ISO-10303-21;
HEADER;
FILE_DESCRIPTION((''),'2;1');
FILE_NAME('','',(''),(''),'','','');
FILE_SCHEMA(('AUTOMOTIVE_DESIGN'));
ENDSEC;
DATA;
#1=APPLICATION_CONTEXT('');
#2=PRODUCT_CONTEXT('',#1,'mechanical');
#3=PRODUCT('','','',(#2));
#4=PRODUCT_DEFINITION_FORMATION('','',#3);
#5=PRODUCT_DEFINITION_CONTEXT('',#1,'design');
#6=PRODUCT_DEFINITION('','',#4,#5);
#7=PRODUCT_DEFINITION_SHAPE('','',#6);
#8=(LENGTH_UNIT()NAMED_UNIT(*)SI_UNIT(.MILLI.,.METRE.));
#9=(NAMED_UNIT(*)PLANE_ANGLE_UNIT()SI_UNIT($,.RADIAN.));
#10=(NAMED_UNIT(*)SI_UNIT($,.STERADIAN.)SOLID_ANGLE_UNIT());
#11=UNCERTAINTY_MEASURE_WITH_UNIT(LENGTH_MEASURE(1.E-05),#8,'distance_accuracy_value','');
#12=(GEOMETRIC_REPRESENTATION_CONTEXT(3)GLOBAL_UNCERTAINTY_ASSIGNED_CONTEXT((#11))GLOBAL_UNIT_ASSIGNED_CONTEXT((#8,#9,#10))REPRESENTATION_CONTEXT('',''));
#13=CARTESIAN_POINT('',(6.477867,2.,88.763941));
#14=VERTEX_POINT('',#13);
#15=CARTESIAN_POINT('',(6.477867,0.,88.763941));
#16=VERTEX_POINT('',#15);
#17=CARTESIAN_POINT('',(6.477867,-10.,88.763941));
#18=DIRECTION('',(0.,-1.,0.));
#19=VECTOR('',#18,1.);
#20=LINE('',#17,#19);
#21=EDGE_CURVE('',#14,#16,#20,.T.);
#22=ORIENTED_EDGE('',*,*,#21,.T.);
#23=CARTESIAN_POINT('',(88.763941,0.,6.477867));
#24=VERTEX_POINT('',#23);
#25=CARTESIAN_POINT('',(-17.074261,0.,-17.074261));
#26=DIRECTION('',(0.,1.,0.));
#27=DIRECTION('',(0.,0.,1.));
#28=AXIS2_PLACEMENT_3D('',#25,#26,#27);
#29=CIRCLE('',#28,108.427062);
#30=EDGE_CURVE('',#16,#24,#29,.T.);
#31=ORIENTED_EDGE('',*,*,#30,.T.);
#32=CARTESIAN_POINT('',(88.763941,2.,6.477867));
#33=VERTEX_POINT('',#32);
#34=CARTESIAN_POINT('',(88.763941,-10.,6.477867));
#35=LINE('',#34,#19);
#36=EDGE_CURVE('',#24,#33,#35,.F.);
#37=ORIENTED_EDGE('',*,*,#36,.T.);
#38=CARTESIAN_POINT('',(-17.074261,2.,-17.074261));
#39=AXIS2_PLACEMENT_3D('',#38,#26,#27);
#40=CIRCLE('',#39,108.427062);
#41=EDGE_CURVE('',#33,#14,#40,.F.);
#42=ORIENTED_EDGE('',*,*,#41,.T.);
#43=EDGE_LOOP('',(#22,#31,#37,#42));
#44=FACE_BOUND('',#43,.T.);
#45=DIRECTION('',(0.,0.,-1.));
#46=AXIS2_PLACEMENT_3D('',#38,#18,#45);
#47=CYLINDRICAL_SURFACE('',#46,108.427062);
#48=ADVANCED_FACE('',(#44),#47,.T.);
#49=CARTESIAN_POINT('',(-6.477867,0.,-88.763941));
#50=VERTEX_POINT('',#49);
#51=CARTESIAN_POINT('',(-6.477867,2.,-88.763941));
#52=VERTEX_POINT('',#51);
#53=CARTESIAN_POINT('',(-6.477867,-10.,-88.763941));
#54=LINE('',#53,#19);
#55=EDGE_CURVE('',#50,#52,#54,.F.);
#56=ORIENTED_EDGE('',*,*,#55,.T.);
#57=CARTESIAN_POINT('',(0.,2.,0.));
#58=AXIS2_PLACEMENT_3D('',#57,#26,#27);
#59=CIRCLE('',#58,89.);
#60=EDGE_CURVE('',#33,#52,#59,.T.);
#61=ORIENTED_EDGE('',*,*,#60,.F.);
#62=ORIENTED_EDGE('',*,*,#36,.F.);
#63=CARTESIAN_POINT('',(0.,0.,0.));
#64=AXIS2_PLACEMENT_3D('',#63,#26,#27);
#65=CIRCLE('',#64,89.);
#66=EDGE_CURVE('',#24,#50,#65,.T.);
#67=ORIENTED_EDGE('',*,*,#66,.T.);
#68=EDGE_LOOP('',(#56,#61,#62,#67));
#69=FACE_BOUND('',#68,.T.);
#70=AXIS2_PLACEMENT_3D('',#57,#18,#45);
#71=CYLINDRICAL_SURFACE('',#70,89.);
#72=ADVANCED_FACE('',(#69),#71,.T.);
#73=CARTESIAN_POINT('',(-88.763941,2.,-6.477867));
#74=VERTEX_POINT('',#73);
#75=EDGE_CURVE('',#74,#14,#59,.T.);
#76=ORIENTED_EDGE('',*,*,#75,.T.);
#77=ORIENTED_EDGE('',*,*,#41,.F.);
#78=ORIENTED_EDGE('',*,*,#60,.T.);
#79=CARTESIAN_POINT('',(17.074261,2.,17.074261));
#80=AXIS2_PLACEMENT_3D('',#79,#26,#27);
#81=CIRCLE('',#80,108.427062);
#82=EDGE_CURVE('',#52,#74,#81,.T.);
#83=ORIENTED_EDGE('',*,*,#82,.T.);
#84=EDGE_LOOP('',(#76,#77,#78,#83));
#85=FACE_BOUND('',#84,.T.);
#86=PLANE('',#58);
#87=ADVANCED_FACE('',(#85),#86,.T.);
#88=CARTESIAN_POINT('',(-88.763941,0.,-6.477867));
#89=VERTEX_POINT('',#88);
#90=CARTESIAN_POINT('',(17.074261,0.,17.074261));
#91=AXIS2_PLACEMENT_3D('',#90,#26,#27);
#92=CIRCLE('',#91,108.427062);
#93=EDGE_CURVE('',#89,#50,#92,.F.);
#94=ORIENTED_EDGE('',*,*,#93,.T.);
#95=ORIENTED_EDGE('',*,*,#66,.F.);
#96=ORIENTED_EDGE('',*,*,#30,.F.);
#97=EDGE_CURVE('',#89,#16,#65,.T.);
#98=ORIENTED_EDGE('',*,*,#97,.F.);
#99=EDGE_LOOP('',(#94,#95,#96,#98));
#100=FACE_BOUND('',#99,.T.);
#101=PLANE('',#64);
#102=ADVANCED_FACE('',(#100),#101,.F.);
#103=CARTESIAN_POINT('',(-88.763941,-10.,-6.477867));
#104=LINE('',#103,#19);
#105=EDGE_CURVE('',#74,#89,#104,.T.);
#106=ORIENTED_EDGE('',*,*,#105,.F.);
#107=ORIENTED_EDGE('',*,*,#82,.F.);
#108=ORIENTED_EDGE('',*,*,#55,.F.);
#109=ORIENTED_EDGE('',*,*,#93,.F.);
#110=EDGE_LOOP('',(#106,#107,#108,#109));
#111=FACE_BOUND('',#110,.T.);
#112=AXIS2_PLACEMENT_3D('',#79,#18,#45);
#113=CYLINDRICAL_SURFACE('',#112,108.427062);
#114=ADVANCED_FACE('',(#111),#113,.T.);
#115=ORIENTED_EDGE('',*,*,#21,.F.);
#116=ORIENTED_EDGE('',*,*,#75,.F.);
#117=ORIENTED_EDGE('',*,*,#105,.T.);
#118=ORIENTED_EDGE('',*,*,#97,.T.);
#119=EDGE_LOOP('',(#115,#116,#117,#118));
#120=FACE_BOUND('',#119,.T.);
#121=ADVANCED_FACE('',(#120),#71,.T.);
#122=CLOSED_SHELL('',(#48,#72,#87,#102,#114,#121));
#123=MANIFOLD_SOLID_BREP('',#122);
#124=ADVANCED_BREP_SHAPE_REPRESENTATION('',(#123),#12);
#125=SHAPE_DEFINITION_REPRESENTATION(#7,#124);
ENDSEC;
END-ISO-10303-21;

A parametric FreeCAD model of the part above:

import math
import FreeCAD as App
import Part
import Sketcher
from FreeCAD import Vector
Q = App.Units.Quantity

doc = App.newDocument("Part")
body = doc.addObject("PartDesign::Body", "Body")

# Sketch on XZ plane
sketch1 = body.newObject("Sketcher::SketchObject", "Sketch")
sketch1.AttachmentSupport = (doc.getObject("XZ_Plane"), [""])
sketch1.MapMode = "FlatFace"
sketch1.addGeometry(Part.Circle(Vector(0, 0, 0), Vector(0, 0, 1), 89), False)
sketch1.addConstraint(Sketcher.Constraint("Coincident", 0, 3, -1, 1))
sketch1.addConstraint(Sketcher.Constraint("Diameter", 0, Q("178 mm")))
pad1 = body.newObject("PartDesign::Pad", "Pad")
pad1.Profile = sketch1
pad1.Length = 2
pad1.Reversed = True

# Sketch on XZ plane
sketch2 = body.newObject("Sketcher::SketchObject", "Sketch001")
sketch2.AttachmentSupport = (doc.getObject("XZ_Plane"), [""])
sketch2.MapMode = "FlatFace"
sketch2.addGeometry(Part.LineSegment(Vector(186.247493, 76.185883, 0), Vector(90, 0, 0)), False)
sketch2.addGeometry(Part.ArcOfCircle(Part.Circle(Vector(-17.074261, -17.074261, 0), Vector(0, 0, 1), 108.427062), math.radians(9.060211), math.radians(80.939789)), False)
sketch2.addGeometry(Part.LineSegment(Vector(0, 90, 0), Vector(27.022308, 178.450111, 0)), False)
sketch2.addGeometry(Part.LineSegment(Vector(27.022308, 178.450111, 0), Vector(186.247493, 76.185883, 0)), False)
sketch2.addGeometry(Part.ArcOfCircle(Part.Circle(Vector(17.074261, 17.074261, 0), Vector(0, 0, 1), 108.427062), math.radians(-170.939789), math.radians(-99.060211)), False)
sketch2.addGeometry(Part.LineSegment(Vector(0, -90, 0), Vector(-57.628188, -163.665773, 0)), False)
sketch2.addGeometry(Part.LineSegment(Vector(-57.628188, -163.665773, 0), Vector(-148.80749, -41.634611, 0)), False)
sketch2.addGeometry(Part.LineSegment(Vector(-148.80749, -41.634611, 0), Vector(-90, 0, 0)), False)
sketch2.addConstraint(Sketcher.Constraint("Coincident", 0, 2, 1, 1))
sketch2.addConstraint(Sketcher.Constraint("Coincident", 1, 2, 2, 1))
sketch2.addConstraint(Sketcher.Constraint("Coincident", 2, 2, 3, 1))
sketch2.addConstraint(Sketcher.Constraint("Coincident", 3, 2, 0, 1))
sketch2.addConstraint(Sketcher.Constraint("Coincident", 4, 2, 5, 1))
sketch2.addConstraint(Sketcher.Constraint("Coincident", 5, 2, 6, 1))
sketch2.addConstraint(Sketcher.Constraint("Coincident", 6, 2, 7, 1))
sketch2.addConstraint(Sketcher.Constraint("Coincident", 7, 2, 4, 1))
sketch2.addConstraint(Sketcher.Constraint("Equal", 1, 4))
sketch2.addConstraint(Sketcher.Constraint("Symmetric", 1, 3, 4, 3, -1, 1))
sketch2.addConstraint(Sketcher.Constraint("Symmetric", 0, 2, 7, 2, -2))
sketch2.addConstraint(Sketcher.Constraint("Symmetric", 1, 2, 4, 2, -1))
sketch2.addConstraint(Sketcher.Constraint("DistanceX", -1, 1, 0, 2, Q("90 mm")))
sketch2.addConstraint(Sketcher.Constraint("DistanceY", -1, 1, 1, 2, Q("90 mm")))
sketch2.addConstraint(Sketcher.Constraint("Radius", 1, Q("108.427062 mm")))
sketch2.addConstraint(Sketcher.Constraint("DistanceX", 6, 2, 5, 2, Q("91.179302 mm")))
sketch2.addConstraint(Sketcher.Constraint("Distance", 6, Q("152.33276 mm")))
sketch2.addConstraint(Sketcher.Constraint("Distance", 7, Q("72.05388 mm")))
sketch2.addConstraint(Sketcher.Constraint("DistanceY", -1, 1, 2, 2, Q("178.450111 mm")))
sketch2.addConstraint(Sketcher.Constraint("DistanceX", 6, 2, -1, 1, Q("148.80749 mm")))
sketch2.addConstraint(Sketcher.Constraint("DistanceX", 1, 3, 2, 2, Q("44.096569 mm")))
sketch2.addConstraint(Sketcher.Constraint("DistanceX", 4, 3, 3, 2, Q("169.173231 mm")))
sketch2.addConstraint(Sketcher.Constraint("DistanceY", 4, 3, 3, 2, Q("59.111622 mm")))
pocket1 = body.newObject("PartDesign::Pocket", "Pocket")
pocket1.Profile = sketch2
pocket1.Type = "ThroughAll"
pocket1.Midplane = True

doc.recompute()
